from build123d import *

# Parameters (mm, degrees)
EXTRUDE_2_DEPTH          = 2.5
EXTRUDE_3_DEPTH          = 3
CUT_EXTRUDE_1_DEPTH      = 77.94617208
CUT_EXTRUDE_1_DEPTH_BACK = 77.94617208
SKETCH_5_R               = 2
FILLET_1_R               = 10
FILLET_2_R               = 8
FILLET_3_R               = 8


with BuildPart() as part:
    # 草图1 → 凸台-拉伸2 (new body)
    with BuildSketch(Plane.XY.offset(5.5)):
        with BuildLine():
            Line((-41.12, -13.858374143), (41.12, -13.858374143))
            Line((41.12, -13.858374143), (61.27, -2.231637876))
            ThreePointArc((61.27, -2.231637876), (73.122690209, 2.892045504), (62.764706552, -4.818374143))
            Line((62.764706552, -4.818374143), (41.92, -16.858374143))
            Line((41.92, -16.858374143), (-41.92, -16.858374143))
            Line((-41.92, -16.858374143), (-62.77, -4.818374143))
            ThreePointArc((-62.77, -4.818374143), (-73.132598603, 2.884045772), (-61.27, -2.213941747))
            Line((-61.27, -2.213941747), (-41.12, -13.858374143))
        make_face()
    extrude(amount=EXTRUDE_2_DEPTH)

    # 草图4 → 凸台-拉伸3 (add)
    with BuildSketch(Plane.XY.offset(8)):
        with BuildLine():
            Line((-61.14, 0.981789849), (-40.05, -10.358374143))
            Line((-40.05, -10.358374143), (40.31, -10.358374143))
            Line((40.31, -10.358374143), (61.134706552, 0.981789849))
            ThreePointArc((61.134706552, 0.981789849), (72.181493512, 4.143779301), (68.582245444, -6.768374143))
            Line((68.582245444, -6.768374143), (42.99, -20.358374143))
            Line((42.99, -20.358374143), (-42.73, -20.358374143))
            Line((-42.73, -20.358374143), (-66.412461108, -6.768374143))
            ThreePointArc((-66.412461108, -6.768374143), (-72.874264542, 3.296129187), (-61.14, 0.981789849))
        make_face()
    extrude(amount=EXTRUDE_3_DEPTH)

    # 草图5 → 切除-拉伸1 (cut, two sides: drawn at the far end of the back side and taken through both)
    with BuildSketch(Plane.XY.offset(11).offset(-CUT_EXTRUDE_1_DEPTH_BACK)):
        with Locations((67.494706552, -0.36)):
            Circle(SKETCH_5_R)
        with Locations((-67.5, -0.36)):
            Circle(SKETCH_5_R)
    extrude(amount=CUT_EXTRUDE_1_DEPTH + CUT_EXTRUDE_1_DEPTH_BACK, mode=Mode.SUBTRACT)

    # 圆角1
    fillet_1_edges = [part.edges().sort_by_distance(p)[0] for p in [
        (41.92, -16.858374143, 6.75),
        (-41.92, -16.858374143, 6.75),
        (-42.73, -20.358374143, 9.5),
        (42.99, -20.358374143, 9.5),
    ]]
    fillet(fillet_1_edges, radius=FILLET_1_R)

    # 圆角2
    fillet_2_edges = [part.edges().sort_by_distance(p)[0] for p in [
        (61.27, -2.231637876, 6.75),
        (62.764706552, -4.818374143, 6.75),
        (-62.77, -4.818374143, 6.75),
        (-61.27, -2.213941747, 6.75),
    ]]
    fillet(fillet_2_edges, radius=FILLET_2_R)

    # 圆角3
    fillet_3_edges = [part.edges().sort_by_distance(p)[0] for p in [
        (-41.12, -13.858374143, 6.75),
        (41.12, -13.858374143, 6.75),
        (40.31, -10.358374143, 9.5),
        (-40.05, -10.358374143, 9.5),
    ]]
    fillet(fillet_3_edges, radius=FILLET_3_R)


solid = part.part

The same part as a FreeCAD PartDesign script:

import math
import FreeCAD as App
import Part
import Sketcher

V = App.Vector
Q = App.Units.Quantity


def edges_at(feature, points):
    """Names of the edges that pass closest to the given points."""
    edges = feature.Shape.Edges
    near = lambda p: min(range(len(edges)), key=lambda i: edges[i].distToShape(Part.Vertex(*p))[0])
    return sorted({f"Edge{near(p) + 1}" for p in points})

doc = App.newDocument("Part")
body = doc.addObject("PartDesign::Body", "Body")

# Sketch on XY plane
sketch1 = body.newObject("Sketcher::SketchObject", "Sketch")
sketch1.AttachmentSupport = (doc.getObject("XY_Plane"), [""])
sketch1.MapMode = "FlatFace"
sketch1.AttachmentOffset = App.Placement(V(0, 0, 5.5), App.Rotation())
sketch1.addGeometry([
    Part.LineSegment(V(41.1, -13.9, 0), V(-41.1, -13.9, 0)),  # 0
    Part.LineSegment(V(-41.1, -13.9, 0), V(-61.3, -2.2, 0)),  # 1
    Part.ArcOfCircle(Part.Circle(V(-67.5, -0.4, 0), V(0, 0, 1), 6.5), math.radians(-17), math.radians(317)),  # 2
    Part.LineSegment(V(-62.8, -4.8, 0), V(-41.9, -16.9, 0)),  # 3
    Part.LineSegment(V(-41.9, -16.9, 0), V(41.9, -16.9, 0)),  # 4
    Part.LineSegment(V(41.9, -16.9, 0), V(62.8, -4.8, 0)),  # 5
    Part.ArcOfCircle(Part.Circle(V(67.5, -0.4, 0), V(0, 0, 1), 6.5), math.radians(-137), math.radians(197)),  # 6
    Part.LineSegment(V(61.3, -2.2, 0), V(41.1, -13.9, 0)),  # 7
], False)
sketch1.addConstraint([
    Sketcher.Constraint("Coincident", 0, 2, 1, 1),
    Sketcher.Constraint("Coincident", 1, 2, 2, 1),
    Sketcher.Constraint("Coincident", 2, 2, 3, 1),
    Sketcher.Constraint("Coincident", 3, 2, 4, 1),
    Sketcher.Constraint("Coincident", 4, 2, 5, 1),
    Sketcher.Constraint("Coincident", 5, 2, 6, 1),
    Sketcher.Constraint("Coincident", 6, 2, 7, 1),
    Sketcher.Constraint("Coincident", 7, 2, 0, 1),
    Sketcher.Constraint("Horizontal", 0),
    Sketcher.Constraint("Horizontal", 4),
    Sketcher.Constraint("Equal", 2, 6),
    Sketcher.Constraint("Horizontal", 2, 3, 6, 3),
    Sketcher.Constraint("Horizontal", 2, 2, 5, 2),
    Sketcher.Constraint("Radius", 2, Q("6.5 mm")),
    Sketcher.Constraint("DistanceY", 3, 2, 0, 2, Q("3 mm")),
    Sketcher.Constraint("DistanceX", 0, 2, 0, 1, Q("82.24 mm")),
    Sketcher.Constraint("DistanceX", 4, 1, 4, 2, Q("83.84 mm")),
    Sketcher.Constraint("DistanceX", 2, 3, -1, 1, Q("67.5 mm")),
    Sketcher.Constraint("DistanceX", 2, 2, 1, 2, Q("1.5 mm")),
    Sketcher.Constraint("DistanceX", 3, 2, 0, 2, Q("0.8 mm")),
    Sketcher.Constraint("DistanceY", 2, 3, -1, 1, Q("0.36 mm")),
    Sketcher.Constraint("DistanceX", 0, 2, -1, 1, Q("41.12 mm")),
    Sketcher.Constraint("DistanceX", 1, 2, -1, 1, Q("61.27 mm")),
    Sketcher.Constraint("DistanceX", -1, 1, 6, 2, Q("61.27 mm")),
    Sketcher.Constraint("DistanceY", 0, 2, 2, 2, Q("9.04 mm")),
    Sketcher.Constraint("Distance", 7, Q("23.263781 mm")),
])
pad1 = body.newObject("PartDesign::Pad", "Pad")
pad1.Profile = sketch1
pad1.Length = 2.5

# Sketch on XY plane
sketch2 = body.newObject("Sketcher::SketchObject", "Sketch001")
sketch2.AttachmentSupport = (doc.getObject("XY_Plane"), [""])
sketch2.MapMode = "FlatFace"
sketch2.AttachmentOffset = App.Placement(V(0, 0, 8), App.Rotation())
sketch2.addGeometry([
    Part.LineSegment(V(-40, -10, 0), V(-61, 1, 0)),  # 0
    Part.ArcOfCircle(Part.Circle(V(-68, 0, 0), V(0, 0, 1), 6), math.radians(12), math.radians(280)),  # 1
    Part.LineSegment(V(-66, -7, 0), V(-43, -20, 0)),  # 2
    Part.LineSegment(V(-43, -20, 0), V(43, -20, 0)),  # 3
    Part.LineSegment(V(43, -20, 0), V(69, -7, 0)),  # 4
    Part.ArcOfCircle(Part.Circle(V(67, 0, 0), V(0, 0, 1), 6), math.radians(-80), math.radians(168)),  # 5
    Part.LineSegment(V(61, 1, 0), V(40, -10, 0)),  # 6
    Part.LineSegment(V(40, -10, 0), V(-40, -10, 0)),  # 7
], False)
sketch2.addConstraint([
    Sketcher.Constraint("Coincident", 0, 2, 1, 1),
    Sketcher.Constraint("Coincident", 1, 2, 2, 1),
    Sketcher.Constraint("Coincident", 2, 2, 3, 1),
    Sketcher.Constraint("Coincident", 3, 2, 4, 1),
    Sketcher.Constraint("Coincident", 4, 2, 5, 1),
    Sketcher.Constraint("Coincident", 5, 2, 6, 1),
    Sketcher.Constraint("Coincident", 6, 2, 7, 1),
    Sketcher.Constraint("Coincident", 7, 2, 0, 1),
    Sketcher.Constraint("Horizontal", 3),
    Sketcher.Constraint("Horizontal", 7),
    Sketcher.Constraint("Equal", 1, 5),
    Sketcher.Constraint("Horizontal", 1, 3, 5, 3),
    Sketcher.Constraint("Horizontal", 1, 2, 4, 2),
    Sketcher.Constraint("Horizontal", 0, 2, 5, 2),
    Sketcher.Constraint("Radius", 1, Q("6.5 mm")),
    Sketcher.Constraint("DistanceY", 3, 2, 6, 2, Q("10 mm")),
    Sketcher.Constraint("DistanceX", 3, 1, 3, 2, Q("85.72 mm")),
    Sketcher.Constraint("DistanceX", 7, 2, 7, 1, Q("80.36 mm")),
    Sketcher.Constraint("DistanceX", 1, 3, -1, 1, Q("67.5 mm")),
    Sketcher.Constraint("DistanceY", 1, 3, -1, 1, Q("0.36 mm")),
    Sketcher.Constraint("DistanceX", 0, 2, -1, 1, Q("61.14 mm")),
    Sketcher.Constraint("DistanceX", 2, 2, -1, 1, Q("42.73 mm")),
    Sketcher.Constraint("DistanceX", -1, 1, 6, 2, Q("40.31 mm")),
    Sketcher.Constraint("DistanceY", 2, 2, 1, 2, Q("13.59 mm")),
    Sketcher.Constraint("Distance", 0, Q("23.945509 mm")),
    Sketcher.Constraint("Distance", 4, Q("28.976734 mm")),
])
pad2 = body.newObject("PartDesign::Pad", "Pad001")
pad2.Profile = sketch2
pad2.Length = 3

# Sketch on XY plane
sketch3 = body.newObject("Sketcher::SketchObject", "Sketch002")
sketch3.AttachmentSupport = (doc.getObject("XY_Plane"), [""])
sketch3.MapMode = "FlatFace"
sketch3.AttachmentOffset = App.Placement(V(0, 0, 11), App.Rotation())
sketch3.addGeometry([
    Part.Circle(V(67.5, -0.4, 0), V(0, 0, 1), 2),
    Part.Circle(V(-67.5, -0.4, 0), V(0, 0, 1), 2),
], False)
sketch3.addConstraint([
    Sketcher.Constraint("Equal", 0, 1),
    Sketcher.Constraint("Horizontal", 0, 3, 1, 3),
    Sketcher.Constraint("Diameter", 0, Q("4 mm")),
    Sketcher.Constraint("DistanceX", 1, 3, -1, 1, Q("67.5 mm")),
    Sketcher.Constraint("DistanceY", 0, 3, -1, 1, Q("0.36 mm")),
    Sketcher.Constraint("DistanceX", -1, 1, 0, 3, Q("67.494707 mm")),
])
pocket1 = body.newObject("PartDesign::Pocket", "Pocket")
pocket1.Profile = sketch3
pocket1.Type = "ThroughAll"
pocket1.Midplane = True
doc.recompute()

fillet = body.newObject("PartDesign::Fillet", "Fillet")
fillet.Base = (pocket1, edges_at(pocket1, [
    (41.92, -16.858, 6.75),
    (-41.92, -16.858, 6.75),
    (-42.73, -20.358, 9.5),
    (42.99, -20.358, 9.5),
]))
fillet.Radius = 10
doc.recompute()

fillet2 = body.newObject("PartDesign::Fillet", "Fillet001")
fillet2.Base = (fillet, edges_at(fillet, [
    (61.27, -2.232, 6.75),
    (62.765, -4.818, 6.75),
    (-62.77, -4.818, 6.75),
    (-61.27, -2.214, 6.75),
]))
fillet2.Radius = 8
doc.recompute()

fillet3 = body.newObject("PartDesign::Fillet", "Fillet002")
fillet3.Base = (fillet2, edges_at(fillet2, [
    (-41.12, -13.858, 6.75),
    (41.12, -13.858, 6.75),
    (40.31, -10.358, 9.5),
    (-40.05, -10.358, 9.5),
]))
fillet3.Radius = 8

doc.recompute()
